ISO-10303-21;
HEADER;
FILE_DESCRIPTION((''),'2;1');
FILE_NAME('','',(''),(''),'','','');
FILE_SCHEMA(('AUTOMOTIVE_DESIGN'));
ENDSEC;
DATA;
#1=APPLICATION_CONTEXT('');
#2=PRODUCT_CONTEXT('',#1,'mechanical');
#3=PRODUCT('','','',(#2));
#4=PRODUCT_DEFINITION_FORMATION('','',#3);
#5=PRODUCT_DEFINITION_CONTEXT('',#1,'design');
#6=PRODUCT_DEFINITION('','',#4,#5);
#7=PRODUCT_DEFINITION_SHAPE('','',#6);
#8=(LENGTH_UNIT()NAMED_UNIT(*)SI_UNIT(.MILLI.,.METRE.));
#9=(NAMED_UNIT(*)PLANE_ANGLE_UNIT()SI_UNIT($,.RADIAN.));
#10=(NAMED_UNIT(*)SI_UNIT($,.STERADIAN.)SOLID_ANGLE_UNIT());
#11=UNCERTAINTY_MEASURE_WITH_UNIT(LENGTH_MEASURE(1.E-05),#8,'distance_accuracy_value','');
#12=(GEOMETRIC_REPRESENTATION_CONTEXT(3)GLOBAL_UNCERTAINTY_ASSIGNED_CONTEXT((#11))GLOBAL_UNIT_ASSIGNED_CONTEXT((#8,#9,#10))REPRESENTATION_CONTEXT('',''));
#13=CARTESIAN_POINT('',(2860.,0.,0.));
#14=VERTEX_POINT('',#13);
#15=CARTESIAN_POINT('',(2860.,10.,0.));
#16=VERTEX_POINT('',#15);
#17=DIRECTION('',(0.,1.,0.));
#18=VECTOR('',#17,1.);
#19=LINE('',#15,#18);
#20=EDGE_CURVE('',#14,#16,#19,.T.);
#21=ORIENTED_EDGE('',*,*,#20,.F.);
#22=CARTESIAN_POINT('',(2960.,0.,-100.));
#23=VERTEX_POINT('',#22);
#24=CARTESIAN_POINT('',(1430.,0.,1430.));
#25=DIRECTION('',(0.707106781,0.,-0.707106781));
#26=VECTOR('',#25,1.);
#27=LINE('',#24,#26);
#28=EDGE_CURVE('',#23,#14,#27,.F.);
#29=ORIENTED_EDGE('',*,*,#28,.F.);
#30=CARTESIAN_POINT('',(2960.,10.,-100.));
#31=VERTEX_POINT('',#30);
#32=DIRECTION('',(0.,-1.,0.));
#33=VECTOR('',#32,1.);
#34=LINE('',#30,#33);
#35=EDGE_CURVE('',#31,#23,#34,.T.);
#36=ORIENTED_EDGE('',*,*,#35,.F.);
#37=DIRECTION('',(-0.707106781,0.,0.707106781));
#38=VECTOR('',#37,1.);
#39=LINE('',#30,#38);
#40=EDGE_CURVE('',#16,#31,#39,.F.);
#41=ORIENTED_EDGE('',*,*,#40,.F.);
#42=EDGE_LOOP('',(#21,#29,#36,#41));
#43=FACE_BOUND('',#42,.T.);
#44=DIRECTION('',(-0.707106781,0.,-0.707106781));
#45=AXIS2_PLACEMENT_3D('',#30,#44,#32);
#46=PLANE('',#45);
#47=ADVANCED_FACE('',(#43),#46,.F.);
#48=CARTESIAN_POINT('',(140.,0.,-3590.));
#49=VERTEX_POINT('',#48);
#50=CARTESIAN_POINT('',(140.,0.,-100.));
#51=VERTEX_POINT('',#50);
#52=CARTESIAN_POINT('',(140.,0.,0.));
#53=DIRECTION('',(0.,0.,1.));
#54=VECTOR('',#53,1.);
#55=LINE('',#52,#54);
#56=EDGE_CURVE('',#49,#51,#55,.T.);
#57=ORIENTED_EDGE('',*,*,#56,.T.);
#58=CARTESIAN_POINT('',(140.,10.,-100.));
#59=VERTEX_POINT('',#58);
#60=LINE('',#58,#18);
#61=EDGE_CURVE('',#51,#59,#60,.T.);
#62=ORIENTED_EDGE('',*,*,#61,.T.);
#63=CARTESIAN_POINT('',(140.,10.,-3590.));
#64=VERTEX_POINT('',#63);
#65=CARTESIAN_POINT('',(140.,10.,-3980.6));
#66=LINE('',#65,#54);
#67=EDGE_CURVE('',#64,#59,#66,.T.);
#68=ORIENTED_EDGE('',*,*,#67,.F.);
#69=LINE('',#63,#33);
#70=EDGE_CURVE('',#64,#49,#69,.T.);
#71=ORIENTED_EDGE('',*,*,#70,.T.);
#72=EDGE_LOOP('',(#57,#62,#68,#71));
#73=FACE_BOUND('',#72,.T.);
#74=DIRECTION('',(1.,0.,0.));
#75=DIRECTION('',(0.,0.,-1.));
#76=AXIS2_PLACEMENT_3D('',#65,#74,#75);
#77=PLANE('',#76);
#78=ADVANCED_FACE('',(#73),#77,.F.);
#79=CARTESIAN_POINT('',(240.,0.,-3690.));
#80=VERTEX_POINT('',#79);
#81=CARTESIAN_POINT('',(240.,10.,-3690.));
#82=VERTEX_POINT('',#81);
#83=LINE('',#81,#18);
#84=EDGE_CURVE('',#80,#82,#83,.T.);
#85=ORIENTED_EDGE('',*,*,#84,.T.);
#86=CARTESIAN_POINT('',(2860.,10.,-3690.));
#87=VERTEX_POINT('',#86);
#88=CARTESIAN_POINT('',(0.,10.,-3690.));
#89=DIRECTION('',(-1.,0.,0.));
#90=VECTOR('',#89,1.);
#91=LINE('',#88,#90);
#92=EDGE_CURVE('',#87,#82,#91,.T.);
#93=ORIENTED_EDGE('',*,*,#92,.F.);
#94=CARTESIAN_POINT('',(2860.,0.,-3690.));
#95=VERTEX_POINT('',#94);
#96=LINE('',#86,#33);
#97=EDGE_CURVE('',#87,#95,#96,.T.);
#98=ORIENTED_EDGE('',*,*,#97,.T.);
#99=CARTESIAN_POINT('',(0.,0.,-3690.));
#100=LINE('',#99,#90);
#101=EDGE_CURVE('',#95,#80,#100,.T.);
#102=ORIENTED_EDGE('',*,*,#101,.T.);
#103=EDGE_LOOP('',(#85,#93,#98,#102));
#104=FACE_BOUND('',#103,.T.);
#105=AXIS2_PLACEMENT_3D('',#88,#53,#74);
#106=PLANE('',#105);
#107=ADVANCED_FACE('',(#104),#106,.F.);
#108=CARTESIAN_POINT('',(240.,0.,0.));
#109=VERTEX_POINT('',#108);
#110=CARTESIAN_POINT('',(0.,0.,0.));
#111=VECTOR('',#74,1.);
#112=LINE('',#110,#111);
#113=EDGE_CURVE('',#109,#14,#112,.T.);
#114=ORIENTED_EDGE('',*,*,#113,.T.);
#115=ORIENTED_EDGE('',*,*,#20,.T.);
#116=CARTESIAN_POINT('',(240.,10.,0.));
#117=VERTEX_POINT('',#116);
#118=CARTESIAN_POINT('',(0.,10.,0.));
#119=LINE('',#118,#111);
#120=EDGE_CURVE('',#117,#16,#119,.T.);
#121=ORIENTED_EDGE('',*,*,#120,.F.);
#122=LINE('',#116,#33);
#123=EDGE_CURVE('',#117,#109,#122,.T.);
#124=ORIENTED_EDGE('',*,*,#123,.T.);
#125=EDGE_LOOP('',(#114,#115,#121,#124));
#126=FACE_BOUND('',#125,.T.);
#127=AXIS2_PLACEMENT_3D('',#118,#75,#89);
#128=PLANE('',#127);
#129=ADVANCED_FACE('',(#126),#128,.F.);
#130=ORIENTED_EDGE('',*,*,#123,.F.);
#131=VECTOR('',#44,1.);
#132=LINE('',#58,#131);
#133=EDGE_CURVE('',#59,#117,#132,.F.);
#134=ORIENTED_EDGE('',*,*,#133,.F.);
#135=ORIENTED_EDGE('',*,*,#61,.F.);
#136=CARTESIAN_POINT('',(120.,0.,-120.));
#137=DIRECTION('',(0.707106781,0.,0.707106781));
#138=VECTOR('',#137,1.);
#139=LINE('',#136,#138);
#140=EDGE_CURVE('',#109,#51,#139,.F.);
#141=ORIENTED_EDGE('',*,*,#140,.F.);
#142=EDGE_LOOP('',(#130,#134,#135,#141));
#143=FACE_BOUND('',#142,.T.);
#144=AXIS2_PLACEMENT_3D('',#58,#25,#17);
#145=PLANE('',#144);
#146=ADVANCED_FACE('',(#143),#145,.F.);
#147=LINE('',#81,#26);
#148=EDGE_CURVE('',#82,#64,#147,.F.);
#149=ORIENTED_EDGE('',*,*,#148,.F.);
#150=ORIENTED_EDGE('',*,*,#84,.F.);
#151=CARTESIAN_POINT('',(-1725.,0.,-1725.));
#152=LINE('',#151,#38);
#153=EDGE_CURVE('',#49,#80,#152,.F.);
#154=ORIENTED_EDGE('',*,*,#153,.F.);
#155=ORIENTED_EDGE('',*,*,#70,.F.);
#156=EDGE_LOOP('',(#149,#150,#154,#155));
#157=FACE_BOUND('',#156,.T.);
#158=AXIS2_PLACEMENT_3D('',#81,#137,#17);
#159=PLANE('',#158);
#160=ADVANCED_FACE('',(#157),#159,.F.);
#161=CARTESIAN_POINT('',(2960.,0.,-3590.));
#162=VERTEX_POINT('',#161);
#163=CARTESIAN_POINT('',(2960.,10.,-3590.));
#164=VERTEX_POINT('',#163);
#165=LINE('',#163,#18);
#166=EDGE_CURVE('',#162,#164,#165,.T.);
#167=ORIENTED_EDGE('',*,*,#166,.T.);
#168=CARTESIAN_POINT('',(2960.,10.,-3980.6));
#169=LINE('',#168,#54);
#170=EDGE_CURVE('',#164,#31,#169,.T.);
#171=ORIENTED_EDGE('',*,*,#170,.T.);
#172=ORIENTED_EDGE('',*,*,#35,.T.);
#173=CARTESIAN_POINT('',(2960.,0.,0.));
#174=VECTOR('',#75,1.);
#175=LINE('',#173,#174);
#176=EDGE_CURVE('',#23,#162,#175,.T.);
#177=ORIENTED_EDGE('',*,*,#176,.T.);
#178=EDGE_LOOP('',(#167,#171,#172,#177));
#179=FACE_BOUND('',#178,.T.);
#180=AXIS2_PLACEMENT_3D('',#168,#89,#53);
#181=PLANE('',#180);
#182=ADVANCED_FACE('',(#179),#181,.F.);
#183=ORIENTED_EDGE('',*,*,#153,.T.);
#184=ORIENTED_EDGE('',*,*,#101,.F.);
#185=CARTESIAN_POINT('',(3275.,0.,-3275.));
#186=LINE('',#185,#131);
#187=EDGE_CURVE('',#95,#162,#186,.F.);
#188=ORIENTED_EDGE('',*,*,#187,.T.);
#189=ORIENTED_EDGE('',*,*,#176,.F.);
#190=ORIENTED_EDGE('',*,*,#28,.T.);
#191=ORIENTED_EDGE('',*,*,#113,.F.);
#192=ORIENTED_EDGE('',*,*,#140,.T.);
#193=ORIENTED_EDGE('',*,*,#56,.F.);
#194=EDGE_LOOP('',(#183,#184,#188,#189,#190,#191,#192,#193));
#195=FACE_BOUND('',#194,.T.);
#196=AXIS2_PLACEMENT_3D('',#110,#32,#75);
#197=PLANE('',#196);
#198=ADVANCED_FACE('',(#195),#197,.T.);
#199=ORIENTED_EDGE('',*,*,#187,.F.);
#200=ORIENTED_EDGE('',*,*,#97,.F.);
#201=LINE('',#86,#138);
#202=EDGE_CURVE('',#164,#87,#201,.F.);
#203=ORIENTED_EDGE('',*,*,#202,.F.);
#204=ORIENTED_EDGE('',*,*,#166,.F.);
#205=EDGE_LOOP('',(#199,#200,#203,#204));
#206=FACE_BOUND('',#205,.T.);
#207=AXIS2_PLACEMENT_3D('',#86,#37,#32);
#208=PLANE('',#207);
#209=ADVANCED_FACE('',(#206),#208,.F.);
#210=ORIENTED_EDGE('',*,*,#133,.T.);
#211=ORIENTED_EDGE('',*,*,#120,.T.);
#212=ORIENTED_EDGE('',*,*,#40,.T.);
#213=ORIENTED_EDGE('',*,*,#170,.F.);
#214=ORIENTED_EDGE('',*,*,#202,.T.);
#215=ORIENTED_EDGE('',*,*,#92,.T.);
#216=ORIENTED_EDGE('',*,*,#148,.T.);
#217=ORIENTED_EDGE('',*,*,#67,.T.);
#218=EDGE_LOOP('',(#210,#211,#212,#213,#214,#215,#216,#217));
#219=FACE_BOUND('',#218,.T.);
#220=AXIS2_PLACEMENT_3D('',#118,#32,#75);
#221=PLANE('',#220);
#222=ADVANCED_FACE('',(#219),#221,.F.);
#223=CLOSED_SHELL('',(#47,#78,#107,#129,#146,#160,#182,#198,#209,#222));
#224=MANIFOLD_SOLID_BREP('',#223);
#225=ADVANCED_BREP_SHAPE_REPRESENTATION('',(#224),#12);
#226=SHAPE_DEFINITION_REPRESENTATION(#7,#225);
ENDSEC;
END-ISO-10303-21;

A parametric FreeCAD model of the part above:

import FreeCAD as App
import Part
import Sketcher

V = App.Vector


def edges_at(feature, points):
    """Names of the edges that pass closest to the given points."""
    edges = feature.Shape.Edges
    near = lambda p: min(range(len(edges)), key=lambda i: edges[i].distToShape(Part.Vertex(*p))[0])
    return sorted({f"Edge{near(p) + 1}" for p in points})


def add_polygon(sketch, points):
    """Adds a closed chain of lines whose ends are joined by coincident constraints."""
    first, n = sketch.GeometryCount, len(points)
    for a, b in zip(points, points[1:] + points[:1]):
        sketch.addGeometry(Part.LineSegment(App.Vector(*a, 0), App.Vector(*b, 0)), False)
    for i in range(n):
        sketch.addConstraint(Sketcher.Constraint("Coincident", first + i, 2, first + (i + 1) % n, 1))

doc = App.newDocument("Part")
body = doc.addObject("PartDesign::Body", "Body")

sketch1 = body.newObject("Sketcher::SketchObject", "Sketch")
sketch1.AttachmentSupport = (doc.getObject("XZ_Plane"), [""])
sketch1.MapMode = "FlatFace"
add_polygon(sketch1, [(0, -3690), (0, 0), (3100, 0), (3100, -3690)])
sketch1.addConstraint(Sketcher.Constraint("Vertical", 0))
sketch1.addConstraint(Sketcher.Constraint("Horizontal", 1))
sketch1.addConstraint(Sketcher.Constraint("Vertical", 2))
sketch1.addConstraint(Sketcher.Constraint("Horizontal", 3))
sketch1.addConstraint(Sketcher.Constraint("Coincident", 0, 2, -1, 1))
sketch1.addConstraint(Sketcher.Constraint("DistanceX", 1, 1, 1, 2, 3100.0))
sketch1.addConstraint(Sketcher.Constraint("DistanceY", 0, 1, 0, 2, 3690.0))
pad1 = body.newObject("PartDesign::Pad", "Pad")
pad1.Profile = sketch1
pad1.Length = 10
pad1.Reversed = True

sketch2 = body.newObject("Sketcher::SketchObject", "Sketch001")
sketch2.AttachmentSupport = (doc.getObject("XY_Plane"), [""])
sketch2.MapMode = "FlatFace"
add_polygon(sketch2, [(0, 10), (0, 0), (140, 0), (140, 10)])
add_polygon(sketch2, [(2960, 10), (2960, 0), (3100, 0), (3100, 10)])
sketch2.addConstraint(Sketcher.Constraint("Vertical", 0))
sketch2.addConstraint(Sketcher.Constraint("Horizontal", 1))
sketch2.addConstraint(Sketcher.Constraint("Vertical", 2))
sketch2.addConstraint(Sketcher.Constraint("Horizontal", 3))
sketch2.addConstraint(Sketcher.Constraint("Vertical", 4))
sketch2.addConstraint(Sketcher.Constraint("Horizontal", 5))
sketch2.addConstraint(Sketcher.Constraint("Vertical", 6))
sketch2.addConstraint(Sketcher.Constraint("Horizontal", 7))
sketch2.addConstraint(Sketcher.Constraint("Coincident", 0, 2, -1, 1))
sketch2.addConstraint(Sketcher.Constraint("PointOnObject", 4, 2, -1))
sketch2.addConstraint(Sketcher.Constraint("Horizontal", 3, 2, 6, 2))
sketch2.addConstraint(Sketcher.Constraint("Equal", 3, 5))
sketch2.addConstraint(Sketcher.Constraint("DistanceX", 1, 1, 1, 2, 140.0))
sketch2.addConstraint(Sketcher.Constraint("DistanceY", 0, 2, 0, 1, 10.0))
sketch2.addConstraint(Sketcher.Constraint("DistanceX", -1, 1, 4, 2, 2960.0))
pocket1 = body.newObject("PartDesign::Pocket", "Pocket")
pocket1.Profile = sketch2
pocket1.Length = 3980.6
doc.recompute()

chamfer = body.newObject("PartDesign::Chamfer", "Chamfer")
chamfer.Base = (pocket1, edges_at(pocket1, [
    (140, 5, -3690),
    (140, 5, 0),
    (2960, 5, -3690),
    (2960, 5, 0),
]))
chamfer.Size = 100

doc.recompute()
